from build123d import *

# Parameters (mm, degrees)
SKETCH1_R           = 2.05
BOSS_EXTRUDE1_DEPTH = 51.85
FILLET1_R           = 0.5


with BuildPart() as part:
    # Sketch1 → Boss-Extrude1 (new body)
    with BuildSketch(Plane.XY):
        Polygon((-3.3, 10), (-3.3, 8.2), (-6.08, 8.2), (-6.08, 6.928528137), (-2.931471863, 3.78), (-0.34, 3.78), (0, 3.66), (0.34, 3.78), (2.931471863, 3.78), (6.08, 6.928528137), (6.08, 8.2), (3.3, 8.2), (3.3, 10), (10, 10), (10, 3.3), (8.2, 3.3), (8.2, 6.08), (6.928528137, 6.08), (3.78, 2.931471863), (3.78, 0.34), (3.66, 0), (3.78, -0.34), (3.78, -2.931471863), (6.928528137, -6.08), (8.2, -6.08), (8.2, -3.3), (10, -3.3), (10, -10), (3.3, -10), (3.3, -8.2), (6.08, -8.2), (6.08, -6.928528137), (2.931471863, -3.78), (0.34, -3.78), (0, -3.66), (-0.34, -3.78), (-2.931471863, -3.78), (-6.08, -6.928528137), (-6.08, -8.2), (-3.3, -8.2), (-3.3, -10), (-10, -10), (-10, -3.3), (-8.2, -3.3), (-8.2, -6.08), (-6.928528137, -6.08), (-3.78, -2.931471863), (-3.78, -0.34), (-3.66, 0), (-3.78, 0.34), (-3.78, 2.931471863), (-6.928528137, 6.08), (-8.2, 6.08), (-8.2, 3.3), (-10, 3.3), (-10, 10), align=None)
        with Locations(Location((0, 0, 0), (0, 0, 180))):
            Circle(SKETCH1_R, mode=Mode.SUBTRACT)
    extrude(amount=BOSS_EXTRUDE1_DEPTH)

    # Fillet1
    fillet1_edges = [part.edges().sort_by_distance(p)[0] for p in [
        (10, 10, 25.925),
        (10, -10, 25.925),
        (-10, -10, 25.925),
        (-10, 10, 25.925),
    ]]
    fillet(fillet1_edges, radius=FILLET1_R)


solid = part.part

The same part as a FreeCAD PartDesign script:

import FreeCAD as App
import Part
import Sketcher

V = App.Vector
Q = App.Units.Quantity


def edges_at(feature, points):
    """Names of the edges that pass closest to the given points."""
    edges = feature.Shape.Edges
    near = lambda p: min(range(len(edges)), key=lambda i: edges[i].distToShape(Part.Vertex(*p))[0])
    return sorted({f"Edge{near(p) + 1}" for p in points})

doc = App.newDocument("Part")
params = doc.addObject("Spreadsheet::Sheet", "Params")
for row, (alias, value) in enumerate([
    ("sketch1_diameter", "4.1 mm"),
    ("sketch1_width", "6.7 mm"),
    ("sketch1_width2", "1.8 mm"),
    ("sketch1_width3", "2.78 mm"),
    ("pad1_length", "51.85 mm"),
    ("fillet_radius", "0.5 mm"),
], start=1):
    params.set(f"A{row}", alias)
    params.set(f"B{row}", "=" + value)
    params.setAlias(f"B{row}", alias)

body = doc.addObject("PartDesign::Body", "Body")

# Sketch on XY plane
sketch1 = body.newObject("Sketcher::SketchObject", "Sketch")
sketch1.AttachmentSupport = (doc.getObject("XY_Plane"), [""])
sketch1.MapMode = "FlatFace"
sketch1.addGeometry([
    Part.LineSegment(V(-3.3, 8.2, 0), V(-3.3, 10, 0)),  # 0
    Part.LineSegment(V(-3.3, 10, 0), V(-10, 10, 0)),  # 1
    Part.LineSegment(V(-10, 10, 0), V(-10, 3.3, 0)),  # 2
    Part.LineSegment(V(-10, 3.3, 0), V(-8.2, 3.3, 0)),  # 3
    Part.LineSegment(V(-8.2, 3.3, 0), V(-8.2, 6.08, 0)),  # 4
    Part.LineSegment(V(-8.2, 6.08, 0), V(-6.928528, 6.08, 0)),  # 5
    Part.LineSegment(V(-6.928528, 6.08, 0), V(-3.78, 2.931472, 0)),  # 6
    Part.LineSegment(V(-3.78, 2.931472, 0), V(-3.78, 0.34, 0)),  # 7
    Part.LineSegment(V(-3.78, 0.34, 0), V(-3.66, 0, 0)),  # 8
    Part.LineSegment(V(-3.66, 0, 0), V(-3.78, -0.34, 0)),  # 9
    Part.LineSegment(V(-3.78, -0.34, 0), V(-3.78, -2.931472, 0)),  # 10
    Part.LineSegment(V(-3.78, -2.931472, 0), V(-6.928528, -6.08, 0)),  # 11
    Part.LineSegment(V(-6.928528, -6.08, 0), V(-8.2, -6.08, 0)),  # 12
    Part.LineSegment(V(-8.2, -6.08, 0), V(-8.2, -3.3, 0)),  # 13
    Part.LineSegment(V(-8.2, -3.3, 0), V(-10, -3.3, 0)),  # 14
    Part.LineSegment(V(-10, -3.3, 0), V(-10, -10, 0)),  # 15
    Part.LineSegment(V(-10, -10, 0), V(-3.3, -10, 0)),  # 16
    Part.LineSegment(V(-3.3, -10, 0), V(-3.3, -8.2, 0)),  # 17
    Part.LineSegment(V(-3.3, -8.2, 0), V(-6.08, -8.2, 0)),  # 18
    Part.LineSegment(V(-6.08, -8.2, 0), V(-6.08, -6.928528, 0)),  # 19
    Part.LineSegment(V(-6.08, -6.928528, 0), V(-2.931472, -3.78, 0)),  # 20
    Part.LineSegment(V(-2.931472, -3.78, 0), V(-0.34, -3.78, 0)),  # 21
    Part.LineSegment(V(-0.34, -3.78, 0), V(0, -3.66, 0)),  # 22
    Part.LineSegment(V(0, -3.66, 0), V(0.34, -3.78, 0)),  # 23
    Part.LineSegment(V(0.34, -3.78, 0), V(2.931472, -3.78, 0)),  # 24
    Part.LineSegment(V(2.931472, -3.78, 0), V(6.08, -6.928528, 0)),  # 25
    Part.LineSegment(V(6.08, -6.928528, 0), V(6.08, -8.2, 0)),  # 26
    Part.LineSegment(V(6.08, -8.2, 0), V(3.3, -8.2, 0)),  # 27
    Part.LineSegment(V(3.3, -8.2, 0), V(3.3, -10, 0)),  # 28
    Part.LineSegment(V(3.3, -10, 0), V(10, -10, 0)),  # 29
    Part.LineSegment(V(10, -10, 0), V(10, -3.3, 0)),  # 30
    Part.LineSegment(V(10, -3.3, 0), V(8.2, -3.3, 0)),  # 31
    Part.LineSegment(V(8.2, -3.3, 0), V(8.2, -6.08, 0)),  # 32
    Part.LineSegment(V(8.2, -6.08, 0), V(6.928528, -6.08, 0)),  # 33
    Part.LineSegment(V(6.928528, -6.08, 0), V(3.78, -2.931472, 0)),  # 34
    Part.LineSegment(V(3.78, -2.931472, 0), V(3.78, -0.34, 0)),  # 35
    Part.LineSegment(V(3.78, -0.34, 0), V(3.66, 0, 0)),  # 36
    Part.LineSegment(V(3.66, 0, 0), V(3.78, 0.34, 0)),  # 37
    Part.LineSegment(V(3.78, 0.34, 0), V(3.78, 2.931472, 0)),  # 38
    Part.LineSegment(V(3.78, 2.931472, 0), V(6.928528, 6.08, 0)),  # 39
    Part.LineSegment(V(6.928528, 6.08, 0), V(8.2, 6.08, 0)),  # 40
    Part.LineSegment(V(8.2, 6.08, 0), V(8.2, 3.3, 0)),  # 41
    Part.LineSegment(V(8.2, 3.3, 0), V(10, 3.3, 0)),  # 42
    Part.LineSegment(V(10, 3.3, 0), V(10, 10, 0)),  # 43
    Part.LineSegment(V(10, 10, 0), V(3.3, 10, 0)),  # 44
    Part.LineSegment(V(3.3, 10, 0), V(3.3, 8.2, 0)),  # 45
    Part.LineSegment(V(3.3, 8.2, 0), V(6.08, 8.2, 0)),  # 46
    Part.LineSegment(V(6.08, 8.2, 0), V(6.08, 6.928528, 0)),  # 47
    Part.LineSegment(V(6.08, 6.928528, 0), V(2.931472, 3.78, 0)),  # 48
    Part.LineSegment(V(2.931472, 3.78, 0), V(0.34, 3.78, 0)),  # 49
    Part.LineSegment(V(0.34, 3.78, 0), V(0, 3.66, 0)),  # 50
    Part.LineSegment(V(0, 3.66, 0), V(-0.34, 3.78, 0)),  # 51
    Part.LineSegment(V(-0.34, 3.78, 0), V(-2.931472, 3.78, 0)),  # 52
    Part.LineSegment(V(-2.931472, 3.78, 0), V(-6.08, 6.928528, 0)),  # 53
    Part.LineSegment(V(-6.08, 6.928528, 0), V(-6.08, 8.2, 0)),  # 54
    Part.LineSegment(V(-6.08, 8.2, 0), V(-3.3, 8.2, 0)),  # 55
    Part.Circle(V(0, 0, 0), V(0, 0, 1), 2.05),  # 56
], False)
sketch1.addConstraint([
    Sketcher.Constraint("Coincident", 0, 2, 1, 1),
    Sketcher.Constraint("Coincident", 1, 2, 2, 1),
    Sketcher.Constraint("Coincident", 2, 2, 3, 1),
    Sketcher.Constraint("Coincident", 3, 2, 4, 1),
    Sketcher.Constraint("Coincident", 4, 2, 5, 1),
    Sketcher.Constraint("Coincident", 5, 2, 6, 1),
    Sketcher.Constraint("Coincident", 6, 2, 7, 1),
    Sketcher.Constraint("Coincident", 7, 2, 8, 1),
    Sketcher.Constraint("Coincident", 8, 2, 9, 1),
    Sketcher.Constraint("Coincident", 9, 2, 10, 1),
    Sketcher.Constraint("Coincident", 10, 2, 11, 1),
    Sketcher.Constraint("Coincident", 11, 2, 12, 1),
    Sketcher.Constraint("Coincident", 12, 2, 13, 1),
    Sketcher.Constraint("Coincident", 13, 2, 14, 1),
    Sketcher.Constraint("Coincident", 14, 2, 15, 1),
    Sketcher.Constraint("Coincident", 15, 2, 16, 1),
    Sketcher.Constraint("Coincident", 16, 2, 17, 1),
    Sketcher.Constraint("Coincident", 17, 2, 18, 1),
    Sketcher.Constraint("Coincident", 18, 2, 19, 1),
    Sketcher.Constraint("Coincident", 19, 2, 20, 1),
    Sketcher.Constraint("Coincident", 20, 2, 21, 1),
    Sketcher.Constraint("Coincident", 21, 2, 22, 1),
    Sketcher.Constraint("Coincident", 22, 2, 23, 1),
    Sketcher.Constraint("Coincident", 23, 2, 24, 1),
    Sketcher.Constraint("Coincident", 24, 2, 25, 1),
    Sketcher.Constraint("Coincident", 25, 2, 26, 1),
    Sketcher.Constraint("Coincident", 26, 2, 27, 1),
    Sketcher.Constraint("Coincident", 27, 2, 28, 1),
    Sketcher.Constraint("Coincident", 28, 2, 29, 1),
    Sketcher.Constraint("Coincident", 29, 2, 30, 1),
    Sketcher.Constraint("Coincident", 30, 2, 31, 1),
    Sketcher.Constraint("Coincident", 31, 2, 32, 1),
    Sketcher.Constraint("Coincident", 32, 2, 33, 1),
    Sketcher.Constraint("Coincident", 33, 2, 34, 1),
    Sketcher.Constraint("Coincident", 34, 2, 35, 1),
    Sketcher.Constraint("Coincident", 35, 2, 36, 1),
    Sketcher.Constraint("Coincident", 36, 2, 37, 1),
    Sketcher.Constraint("Coincident", 37, 2, 38, 1),
    Sketcher.Constraint("Coincident", 38, 2, 39, 1),
    Sketcher.Constraint("Coincident", 39, 2, 40, 1),
    Sketcher.Constraint("Coincident", 40, 2, 41, 1),
    Sketcher.Constraint("Coincident", 41, 2, 42, 1),
    Sketcher.Constraint("Coincident", 42, 2, 43, 1),
    Sketcher.Constraint("Coincident", 43, 2, 44, 1),
    Sketcher.Constraint("Coincident", 44, 2, 45, 1),
    Sketcher.Constraint("Coincident", 45, 2, 46, 1),
    Sketcher.Constraint("Coincident", 46, 2, 47, 1),
    Sketcher.Constraint("Coincident", 47, 2, 48, 1),
    Sketcher.Constraint("Coincident", 48, 2, 49, 1),
    Sketcher.Constraint("Coincident", 49, 2, 50, 1),
    Sketcher.Constraint("Coincident", 50, 2, 51, 1),
    Sketcher.Constraint("Coincident", 51, 2, 52, 1),
    Sketcher.Constraint("Coincident", 52, 2, 53, 1),
    Sketcher.Constraint("Coincident", 53, 2, 54, 1),
    Sketcher.Constraint("Coincident", 54, 2, 55, 1),
    Sketcher.Constraint("Coincident", 55, 2, 0, 1),
    Sketcher.Constraint("Vertical", 0),
    Sketcher.Constraint("Horizontal", 1),
    Sketcher.Constraint("Vertical", 2),
    Sketcher.Constraint("Horizontal", 3),
    Sketcher.Constraint("Vertical", 4),
    Sketcher.Constraint("Horizontal", 5),
    Sketcher.Constraint("Vertical", 7),
    Sketcher.Constraint("Vertical", 10),
    Sketcher.Constraint("Horizontal", 12),
    Sketcher.Constraint("Vertical", 13),
    Sketcher.Constraint("Horizontal", 14),
    Sketcher.Constraint("Vertical", 15),
    Sketcher.Constraint("Horizontal", 16),
    Sketcher.Constraint("Vertical", 17),
    Sketcher.Constraint("Horizontal", 18),
    Sketcher.Constraint("Vertical", 19),
    Sketcher.Constraint("Horizontal", 21),
    Sketcher.Constraint("Horizontal", 24),
    Sketcher.Constraint("Vertical", 26),
    Sketcher.Constraint("Horizontal", 27),
    Sketcher.Constraint("Vertical", 28),
    Sketcher.Constraint("Horizontal", 29),
    Sketcher.Constraint("Vertical", 30),
    Sketcher.Constraint("Horizontal", 31),
    Sketcher.Constraint("Vertical", 32),
    Sketcher.Constraint("Horizontal", 33),
    Sketcher.Constraint("Vertical", 35),
    Sketcher.Constraint("Vertical", 38),
    Sketcher.Constraint("Horizontal", 40),
    Sketcher.Constraint("Vertical", 41),
    Sketcher.Constraint("Horizontal", 42),
    Sketcher.Constraint("Vertical", 43),
    Sketcher.Constraint("Horizontal", 44),
    Sketcher.Constraint("Vertical", 45),
    Sketcher.Constraint("Horizontal", 46),
    Sketcher.Constraint("Vertical", 47),
    Sketcher.Constraint("Horizontal", 49),
    Sketcher.Constraint("Horizontal", 52),
    Sketcher.Constraint("Vertical", 54),
    Sketcher.Constraint("Horizontal", 55),
    Sketcher.Constraint("Coincident", 56, 3, -1, 1),
    Sketcher.Constraint("Symmetric", 0, 2, 28, 2, -1, 1),
    Sketcher.Constraint("Symmetric", 2, 2, 30, 2, -1, 1),
    Sketcher.Constraint("Symmetric", 4, 2, 32, 2, -1, 1),
    Sketcher.Constraint("Symmetric", 6, 2, 34, 2, -1, 1),
    Sketcher.Constraint("Symmetric", 8, 2, 36, 2, -1, 1),
    Sketcher.Constraint("Symmetric", 9, 2, 37, 2, -1, 1),
    Sketcher.Constraint("Symmetric", 11, 2, 39, 2, -1, 1),
    Sketcher.Constraint("Symmetric", 13, 2, 41, 2, -1, 1),
    Sketcher.Constraint("Symmetric", 15, 2, 43, 2, -1, 1),
    Sketcher.Constraint("Symmetric", 17, 2, 45, 2, -1, 1),
    Sketcher.Constraint("Symmetric", 19, 2, 47, 2, -1, 1),
    Sketcher.Constraint("Symmetric", 20, 2, 48, 2, -1, 1),
    Sketcher.Constraint("Symmetric", 22, 2, 50, 2, -1, 1),
    Sketcher.Constraint("Symmetric", 23, 2, 51, 2, -1, 1),
    Sketcher.Constraint("Symmetric", 25, 2, 53, 2, -1, 1),
    Sketcher.Constraint("Symmetric", 21, 2, 23, 2, -2),
    Sketcher.Constraint("Symmetric", 19, 2, 25, 2, -2),
    Sketcher.Constraint("Symmetric", 17, 2, 27, 2, -2),
    Sketcher.Constraint("Symmetric", 15, 2, 29, 2, -2),
    Sketcher.Constraint("Symmetric", 13, 2, 31, 2, -2),
    Sketcher.Constraint("Symmetric", 11, 2, 33, 2, -2),
    Sketcher.Constraint("Symmetric", 10, 2, 34, 2, -2),
    Sketcher.Constraint("PointOnObject", 8, 2, -1),
    Sketcher.Constraint("PointOnObject", 22, 2, -2),
    Sketcher.Constraint("Perpendicular", 6, 11),
    Sketcher.Constraint("Parallel", 11, 20),
    Sketcher.Constraint("Perpendicular", 8, 22),
    Sketcher.Constraint("Perpendicular", 9, 23),
    Sketcher.Constraint("Perpendicular", 20, 25),
    Sketcher.Constraint("Parallel", 25, 34),
    Sketcher.Constraint("Perpendicular", 22, 36),
    Sketcher.Constraint("Perpendicular", 34, 39),
    Sketcher.Constraint("Perpendicular", 36, 50),
    Sketcher.Constraint("Perpendicular", 48, 53),
    Sketcher.Constraint("Horizontal", 46, 2, 54, 2),
    Sketcher.Constraint("Equal", 42, 0),
    Sketcher.Constraint("Equal", 44, 2),
    Sketcher.Constraint("Equal", 55, 4),
    Sketcher.Constraint("Equal", 52, 7),
    Sketcher.Constraint("Equal", 40, 19),
    Sketcher.Constraint("Equal", 11, 20),
    Sketcher.Constraint("Equal", 9, 22),
    Sketcher.Constraint("Diameter", 56, Q("4.1 mm")),
    Sketcher.Constraint("DistanceX", 1, 2, 1, 1, Q("6.7 mm")),
    Sketcher.Constraint("DistanceX", 3, 1, 3, 2, Q("1.8 mm")),
    Sketcher.Constraint("DistanceY", -1, 1, 0, 2, Q("10 mm")),
    Sketcher.Constraint("DistanceX", 18, 2, 18, 1, Q("2.78 mm")),
    Sketcher.Constraint("DistanceX", 6, 2, -1, 1, Q("3.78 mm")),
    Sketcher.Constraint("DistanceY", -1, 1, 7, 2, Q("0.34 mm")),
    Sketcher.Constraint("DistanceX", 8, 2, -1, 1, Q("3.66 mm")),
    Sketcher.Constraint("DistanceX", 5, 1, 5, 2, Q("1.271472 mm")),
])
sketch1.setExpression("Constraints[139]", "Params.sketch1_diameter")
sketch1.setExpression("Constraints[140]", "Params.sketch1_width")
sketch1.setExpression("Constraints[141]", "Params.sketch1_width2")
sketch1.setExpression("Constraints[143]", "Params.sketch1_width3")
pad1 = body.newObject("PartDesign::Pad", "Pad")
pad1.Profile = sketch1
pad1.setExpression("Length", "Params.pad1_length")
doc.recompute()

fillet = body.newObject("PartDesign::Fillet", "Fillet")
fillet.Base = (pad1, edges_at(pad1, [
    (10, 10, 25.925),
    (10, -10, 25.925),
    (-10, -10, 25.925),
    (-10, 10, 25.925),
]))
fillet.setExpression("Radius", "Params.fillet_radius")

doc.recompute()
